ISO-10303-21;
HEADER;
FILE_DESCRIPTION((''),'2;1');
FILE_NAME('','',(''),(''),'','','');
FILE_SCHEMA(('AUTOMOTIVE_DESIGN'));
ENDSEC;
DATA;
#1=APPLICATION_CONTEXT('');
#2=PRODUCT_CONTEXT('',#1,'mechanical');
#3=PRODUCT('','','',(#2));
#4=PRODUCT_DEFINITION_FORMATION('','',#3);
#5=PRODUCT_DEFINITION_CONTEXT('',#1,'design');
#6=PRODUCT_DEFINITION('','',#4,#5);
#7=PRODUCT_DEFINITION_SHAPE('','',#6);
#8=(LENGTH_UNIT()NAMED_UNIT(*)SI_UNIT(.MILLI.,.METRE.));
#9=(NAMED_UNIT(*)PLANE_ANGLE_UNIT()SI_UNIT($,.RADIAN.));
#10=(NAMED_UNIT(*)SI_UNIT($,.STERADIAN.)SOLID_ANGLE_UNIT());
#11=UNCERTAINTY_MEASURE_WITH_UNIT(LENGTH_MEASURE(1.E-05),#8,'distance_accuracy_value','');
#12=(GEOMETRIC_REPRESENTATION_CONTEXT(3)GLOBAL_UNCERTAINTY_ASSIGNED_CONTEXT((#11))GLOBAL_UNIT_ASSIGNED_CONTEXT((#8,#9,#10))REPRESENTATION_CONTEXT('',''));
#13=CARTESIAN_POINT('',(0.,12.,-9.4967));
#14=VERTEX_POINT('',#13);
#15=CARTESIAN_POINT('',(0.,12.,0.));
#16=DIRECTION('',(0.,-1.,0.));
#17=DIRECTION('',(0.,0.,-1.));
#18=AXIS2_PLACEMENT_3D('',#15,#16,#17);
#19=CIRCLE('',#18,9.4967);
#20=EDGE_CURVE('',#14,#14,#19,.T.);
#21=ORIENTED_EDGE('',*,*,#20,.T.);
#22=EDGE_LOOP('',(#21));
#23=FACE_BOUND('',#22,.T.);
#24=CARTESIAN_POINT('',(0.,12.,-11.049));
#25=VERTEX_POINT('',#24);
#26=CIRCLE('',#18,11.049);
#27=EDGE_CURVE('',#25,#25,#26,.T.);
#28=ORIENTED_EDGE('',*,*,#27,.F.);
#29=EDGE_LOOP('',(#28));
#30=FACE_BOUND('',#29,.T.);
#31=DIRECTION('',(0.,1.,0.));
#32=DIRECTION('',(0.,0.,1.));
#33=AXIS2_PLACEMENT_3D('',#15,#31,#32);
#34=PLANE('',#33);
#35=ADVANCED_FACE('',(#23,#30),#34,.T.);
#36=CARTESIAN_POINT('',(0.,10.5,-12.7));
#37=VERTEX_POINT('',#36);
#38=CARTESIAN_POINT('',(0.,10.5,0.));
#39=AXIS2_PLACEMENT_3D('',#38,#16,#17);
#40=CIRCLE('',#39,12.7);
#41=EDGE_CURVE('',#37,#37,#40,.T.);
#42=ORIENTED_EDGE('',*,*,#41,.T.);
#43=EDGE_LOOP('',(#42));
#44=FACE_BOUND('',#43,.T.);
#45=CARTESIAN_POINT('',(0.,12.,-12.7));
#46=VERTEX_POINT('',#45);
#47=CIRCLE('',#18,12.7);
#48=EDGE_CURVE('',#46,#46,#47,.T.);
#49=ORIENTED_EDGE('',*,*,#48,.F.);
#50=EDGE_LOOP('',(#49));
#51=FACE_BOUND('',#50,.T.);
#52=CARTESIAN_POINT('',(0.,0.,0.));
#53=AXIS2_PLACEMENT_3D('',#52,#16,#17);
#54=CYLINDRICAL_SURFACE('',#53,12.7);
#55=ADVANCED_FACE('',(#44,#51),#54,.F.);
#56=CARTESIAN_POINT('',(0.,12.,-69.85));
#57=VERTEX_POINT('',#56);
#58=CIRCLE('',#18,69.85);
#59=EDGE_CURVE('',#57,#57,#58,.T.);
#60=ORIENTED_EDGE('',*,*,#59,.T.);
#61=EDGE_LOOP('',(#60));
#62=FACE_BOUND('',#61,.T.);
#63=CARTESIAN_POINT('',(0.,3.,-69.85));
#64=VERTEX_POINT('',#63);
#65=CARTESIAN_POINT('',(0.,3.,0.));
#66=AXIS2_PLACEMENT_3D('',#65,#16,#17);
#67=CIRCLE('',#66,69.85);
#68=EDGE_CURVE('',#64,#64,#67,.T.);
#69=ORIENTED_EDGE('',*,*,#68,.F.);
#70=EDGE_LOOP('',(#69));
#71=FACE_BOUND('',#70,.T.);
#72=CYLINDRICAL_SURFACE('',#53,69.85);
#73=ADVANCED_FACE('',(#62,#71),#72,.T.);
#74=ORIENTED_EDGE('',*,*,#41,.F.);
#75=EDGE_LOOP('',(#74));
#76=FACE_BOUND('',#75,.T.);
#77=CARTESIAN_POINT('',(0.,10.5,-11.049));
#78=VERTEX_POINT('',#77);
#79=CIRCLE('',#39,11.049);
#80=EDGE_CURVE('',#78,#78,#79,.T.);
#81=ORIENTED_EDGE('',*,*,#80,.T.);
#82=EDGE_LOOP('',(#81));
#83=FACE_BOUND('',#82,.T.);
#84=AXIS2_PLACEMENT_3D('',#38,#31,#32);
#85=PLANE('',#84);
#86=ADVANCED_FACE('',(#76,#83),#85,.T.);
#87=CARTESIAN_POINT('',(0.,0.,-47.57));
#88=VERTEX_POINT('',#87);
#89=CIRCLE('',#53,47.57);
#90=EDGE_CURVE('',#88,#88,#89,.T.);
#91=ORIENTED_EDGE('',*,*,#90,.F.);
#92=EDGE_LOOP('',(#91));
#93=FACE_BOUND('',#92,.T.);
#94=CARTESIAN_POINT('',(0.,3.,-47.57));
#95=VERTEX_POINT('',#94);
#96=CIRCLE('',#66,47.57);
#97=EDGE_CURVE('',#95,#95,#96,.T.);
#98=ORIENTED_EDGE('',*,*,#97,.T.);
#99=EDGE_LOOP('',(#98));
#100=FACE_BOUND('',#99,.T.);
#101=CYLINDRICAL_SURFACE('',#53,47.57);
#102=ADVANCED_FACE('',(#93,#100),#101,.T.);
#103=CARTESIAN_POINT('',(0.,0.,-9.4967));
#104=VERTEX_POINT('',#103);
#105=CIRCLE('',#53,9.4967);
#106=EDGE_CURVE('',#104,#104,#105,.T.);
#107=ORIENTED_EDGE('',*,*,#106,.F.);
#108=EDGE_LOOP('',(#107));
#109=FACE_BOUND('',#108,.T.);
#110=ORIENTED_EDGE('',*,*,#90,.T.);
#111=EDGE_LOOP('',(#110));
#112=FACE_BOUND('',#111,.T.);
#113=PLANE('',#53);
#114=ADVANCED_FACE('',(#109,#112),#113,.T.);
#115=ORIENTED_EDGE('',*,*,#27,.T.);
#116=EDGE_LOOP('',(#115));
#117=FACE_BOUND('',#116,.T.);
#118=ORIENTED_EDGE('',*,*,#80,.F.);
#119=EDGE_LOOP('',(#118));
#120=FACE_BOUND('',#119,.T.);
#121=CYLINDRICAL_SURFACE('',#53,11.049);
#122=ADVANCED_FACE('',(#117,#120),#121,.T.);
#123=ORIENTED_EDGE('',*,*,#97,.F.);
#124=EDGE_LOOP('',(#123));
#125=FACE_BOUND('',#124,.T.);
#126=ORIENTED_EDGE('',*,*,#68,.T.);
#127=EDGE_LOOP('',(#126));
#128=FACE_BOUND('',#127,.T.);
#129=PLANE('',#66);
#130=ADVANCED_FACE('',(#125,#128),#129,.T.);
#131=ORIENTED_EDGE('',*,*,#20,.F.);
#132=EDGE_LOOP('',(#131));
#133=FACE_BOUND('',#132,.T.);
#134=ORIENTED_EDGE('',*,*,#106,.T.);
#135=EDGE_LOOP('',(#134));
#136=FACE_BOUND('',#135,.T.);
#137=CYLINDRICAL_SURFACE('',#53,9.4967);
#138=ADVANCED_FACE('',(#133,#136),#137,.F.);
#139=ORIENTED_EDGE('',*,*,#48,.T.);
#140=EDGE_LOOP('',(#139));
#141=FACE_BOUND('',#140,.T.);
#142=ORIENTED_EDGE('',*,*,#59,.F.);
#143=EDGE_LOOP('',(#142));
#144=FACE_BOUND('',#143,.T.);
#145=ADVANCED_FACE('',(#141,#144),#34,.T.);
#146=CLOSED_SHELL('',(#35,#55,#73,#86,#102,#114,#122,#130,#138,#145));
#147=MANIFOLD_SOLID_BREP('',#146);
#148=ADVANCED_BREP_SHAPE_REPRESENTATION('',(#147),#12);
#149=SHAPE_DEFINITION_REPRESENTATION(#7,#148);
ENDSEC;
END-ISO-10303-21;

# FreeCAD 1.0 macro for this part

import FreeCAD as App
import Part
import Sketcher


def add_polygon(sketch, points):
    """Adds a closed chain of lines whose ends are joined by coincident constraints."""
    first, n = sketch.GeometryCount, len(points)
    for a, b in zip(points, points[1:] + points[:1]):
        sketch.addGeometry(Part.LineSegment(App.Vector(*a, 0), App.Vector(*b, 0)), False)
    for i in range(n):
        sketch.addConstraint(Sketcher.Constraint("Coincident", first + i, 2, first + (i + 1) % n, 1))

doc = App.newDocument("Part")
body = doc.addObject("PartDesign::Body", "Body")

# Sketch on XY plane
sketch1 = body.newObject("Sketcher::SketchObject", "Sketch")
sketch1.AttachmentSupport = (doc.getObject("XY_Plane"), [""])
sketch1.MapMode = "FlatFace"
add_polygon(sketch1, [(-47.6, 0), (-9.5, 0), (-9.5, 12), (-11, 12), (-11, 10.5), (-12.7, 10.5), (-12.7, 12), (-69.8, 12), (-69.8, 3), (-47.6, 3)])  # lines 0-9
sketch1.addConstraint([
    Sketcher.Constraint("Horizontal", 0),
    Sketcher.Constraint("Vertical", 1),
    Sketcher.Constraint("Horizontal", 2),
    Sketcher.Constraint("Vertical", 3),
    Sketcher.Constraint("Horizontal", 4),
    Sketcher.Constraint("Vertical", 5),
    Sketcher.Constraint("Horizontal", 6),
    Sketcher.Constraint("Vertical", 7),
    Sketcher.Constraint("Horizontal", 8),
    Sketcher.Constraint("Vertical", 9),
    Sketcher.Constraint("PointOnObject", 0, 2, -1),
    Sketcher.Constraint("Horizontal", 2, 2, 5, 2),
    Sketcher.Constraint("DistanceY", 1, 1, 1, 2, 12.0),
    Sketcher.Constraint("DistanceY", 7, 2, 7, 1, 9.0),
    Sketcher.Constraint("DistanceY", 3, 2, 3, 1, 1.5),
    Sketcher.Constraint("DistanceX", 6, 2, 6, 1, 57.15),
    Sketcher.Constraint("DistanceX", 8, 1, 8, 2, 22.28),
    Sketcher.Constraint("DistanceX", 4, 2, -1, 1, 12.7),
    Sketcher.Constraint("DistanceX", 4, 2, 4, 1, 1.651),
    Sketcher.Constraint("DistanceX", 0, 1, 0, 2, 38.0733),
])
revolution = body.newObject("PartDesign::Revolution", "Revolution")
revolution.Profile = sketch1
revolution.ReferenceAxis = (sketch1, ["V_Axis"])
revolution.Angle = 360

doc.recompute()
